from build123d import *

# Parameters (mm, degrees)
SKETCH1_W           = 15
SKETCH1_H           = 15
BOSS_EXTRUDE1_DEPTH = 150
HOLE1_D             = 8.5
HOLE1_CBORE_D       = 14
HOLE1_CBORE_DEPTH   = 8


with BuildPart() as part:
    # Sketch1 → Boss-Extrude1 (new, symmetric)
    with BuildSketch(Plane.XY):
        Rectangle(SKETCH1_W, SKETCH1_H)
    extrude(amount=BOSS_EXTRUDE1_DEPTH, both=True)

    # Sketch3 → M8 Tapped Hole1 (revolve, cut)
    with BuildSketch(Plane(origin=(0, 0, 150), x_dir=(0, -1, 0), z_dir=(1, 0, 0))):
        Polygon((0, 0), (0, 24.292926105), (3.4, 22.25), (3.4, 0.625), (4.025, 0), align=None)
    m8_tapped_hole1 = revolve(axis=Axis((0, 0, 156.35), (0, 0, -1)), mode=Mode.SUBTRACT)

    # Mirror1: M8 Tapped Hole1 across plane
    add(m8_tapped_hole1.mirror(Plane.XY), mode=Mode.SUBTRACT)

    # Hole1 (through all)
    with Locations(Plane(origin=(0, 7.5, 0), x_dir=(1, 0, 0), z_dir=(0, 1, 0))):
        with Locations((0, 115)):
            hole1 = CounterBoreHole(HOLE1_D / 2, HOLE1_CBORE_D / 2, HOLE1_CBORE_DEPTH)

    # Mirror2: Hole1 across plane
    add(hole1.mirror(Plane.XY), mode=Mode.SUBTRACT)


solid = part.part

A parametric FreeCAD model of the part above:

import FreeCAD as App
import Part
import Sketcher

V = App.Vector
Q = App.Units.Quantity


def add_polygon(sketch, points):
    """Adds a closed chain of lines whose ends are joined by coincident constraints."""
    first, n = sketch.GeometryCount, len(points)
    for a, b in zip(points, points[1:] + points[:1]):
        sketch.addGeometry(Part.LineSegment(App.Vector(*a, 0), App.Vector(*b, 0)), False)
    for i in range(n):
        sketch.addConstraint(Sketcher.Constraint("Coincident", first + i, 2, first + (i + 1) % n, 1))

doc = App.newDocument("Part")
body = doc.addObject("PartDesign::Body", "Body")

# Sketch on XY plane
sketch1 = body.newObject("Sketcher::SketchObject", "Sketch")
sketch1.AttachmentSupport = (doc.getObject("XY_Plane"), [""])
sketch1.MapMode = "FlatFace"
add_polygon(sketch1, [(-8, 8), (-8, -8), (8, -8), (8, 8)])  # lines 0-3
sketch1.addConstraint([
    Sketcher.Constraint("Vertical", 0),
    Sketcher.Constraint("Horizontal", 1),
    Sketcher.Constraint("Vertical", 2),
    Sketcher.Constraint("Horizontal", 3),
    Sketcher.Constraint("Symmetric", 0, 2, 2, 2, -1, 1),
    Sketcher.Constraint("Equal", 3, 0),
    Sketcher.Constraint("DistanceX", 1, 1, 1, 2, 15.0),
])
pad1 = body.newObject("PartDesign::Pad", "Pad")
pad1.Profile = sketch1
pad1.Length = 300
pad1.Midplane = True

# Sketch on YZ plane
sketch2 = body.newObject("Sketcher::SketchObject", "Sketch001")
sketch2.AttachmentSupport = (doc.getObject("YZ_Plane"), [""])
sketch2.MapMode = "FlatFace"
add_polygon(sketch2, [(0, 125.7), (0, 150), (-4, 150), (-3.4, 149.4), (-3.4, 127.8)])  # lines 0-4
sketch2.addConstraint([
    Sketcher.Constraint("Vertical", 0),
    Sketcher.Constraint("Horizontal", 1),
    Sketcher.Constraint("Vertical", 3),
    Sketcher.Constraint("PointOnObject", 0, 2, -2),
    Sketcher.Constraint("Angle", 2, Q("-45 deg")),
    Sketcher.Constraint("Angle", 4, Q("-31 deg")),
    Sketcher.Constraint("DistanceY", -1, 1, 0, 2, 150.0),
    Sketcher.Constraint("DistanceX", 2, 2, -1, 1, 3.4),
    Sketcher.Constraint("DistanceX", 1, 2, 1, 1, 4.025),
    Sketcher.Constraint("DistanceY", 3, 2, 3, 1, 21.625),
])
groove = body.newObject("PartDesign::Groove", "Groove")
groove.Profile = sketch2
groove.ReferenceAxis = (sketch2, ["V_Axis"])
groove.Angle = 360
doc.recompute()

mirrored = body.newObject("PartDesign::Mirrored", "Mirrored")
mirrored.Originals = [groove]
mirrored.MirrorPlane = (doc.getObject("XY_Plane"), [""])
body.Tip = mirrored

# Sketch on XZ plane
sketch3 = body.newObject("Sketcher::SketchObject", "Sketch002")
sketch3.AttachmentSupport = (doc.getObject("XZ_Plane"), [""])
sketch3.MapMode = "FlatFace"
sketch3.AttachmentOffset = App.Placement(V(0, 0, -7.5), App.Rotation())
sketch3.addGeometry(Part.Circle(V(0, -115, 0), V(0, 0, 1), 4.2), False)
sketch3.addConstraint([
    Sketcher.Constraint("PointOnObject", 0, 3, -2),
    Sketcher.Constraint("Diameter", 0, 8.5),
    Sketcher.Constraint("DistanceY", 0, 3, -1, 1, 115.0),
])
doc.recompute()
hole = body.newObject("PartDesign::Hole", "Hole")
hole.Profile = sketch3
hole.ThreadType = "None"
hole.Diameter = 8.5
hole.DepthType = "ThroughAll"
hole.HoleCutType = "Counterbore"
hole.HoleCutDiameter = 14
hole.HoleCutDepth = 8
hole.Reversed = True
doc.recompute()

mirrored2 = body.newObject("PartDesign::Mirrored", "Mirrored001")
mirrored2.Originals = [hole]
mirrored2.MirrorPlane = (doc.getObject("XY_Plane"), [""])
body.Tip = mirrored2

doc.recompute()
